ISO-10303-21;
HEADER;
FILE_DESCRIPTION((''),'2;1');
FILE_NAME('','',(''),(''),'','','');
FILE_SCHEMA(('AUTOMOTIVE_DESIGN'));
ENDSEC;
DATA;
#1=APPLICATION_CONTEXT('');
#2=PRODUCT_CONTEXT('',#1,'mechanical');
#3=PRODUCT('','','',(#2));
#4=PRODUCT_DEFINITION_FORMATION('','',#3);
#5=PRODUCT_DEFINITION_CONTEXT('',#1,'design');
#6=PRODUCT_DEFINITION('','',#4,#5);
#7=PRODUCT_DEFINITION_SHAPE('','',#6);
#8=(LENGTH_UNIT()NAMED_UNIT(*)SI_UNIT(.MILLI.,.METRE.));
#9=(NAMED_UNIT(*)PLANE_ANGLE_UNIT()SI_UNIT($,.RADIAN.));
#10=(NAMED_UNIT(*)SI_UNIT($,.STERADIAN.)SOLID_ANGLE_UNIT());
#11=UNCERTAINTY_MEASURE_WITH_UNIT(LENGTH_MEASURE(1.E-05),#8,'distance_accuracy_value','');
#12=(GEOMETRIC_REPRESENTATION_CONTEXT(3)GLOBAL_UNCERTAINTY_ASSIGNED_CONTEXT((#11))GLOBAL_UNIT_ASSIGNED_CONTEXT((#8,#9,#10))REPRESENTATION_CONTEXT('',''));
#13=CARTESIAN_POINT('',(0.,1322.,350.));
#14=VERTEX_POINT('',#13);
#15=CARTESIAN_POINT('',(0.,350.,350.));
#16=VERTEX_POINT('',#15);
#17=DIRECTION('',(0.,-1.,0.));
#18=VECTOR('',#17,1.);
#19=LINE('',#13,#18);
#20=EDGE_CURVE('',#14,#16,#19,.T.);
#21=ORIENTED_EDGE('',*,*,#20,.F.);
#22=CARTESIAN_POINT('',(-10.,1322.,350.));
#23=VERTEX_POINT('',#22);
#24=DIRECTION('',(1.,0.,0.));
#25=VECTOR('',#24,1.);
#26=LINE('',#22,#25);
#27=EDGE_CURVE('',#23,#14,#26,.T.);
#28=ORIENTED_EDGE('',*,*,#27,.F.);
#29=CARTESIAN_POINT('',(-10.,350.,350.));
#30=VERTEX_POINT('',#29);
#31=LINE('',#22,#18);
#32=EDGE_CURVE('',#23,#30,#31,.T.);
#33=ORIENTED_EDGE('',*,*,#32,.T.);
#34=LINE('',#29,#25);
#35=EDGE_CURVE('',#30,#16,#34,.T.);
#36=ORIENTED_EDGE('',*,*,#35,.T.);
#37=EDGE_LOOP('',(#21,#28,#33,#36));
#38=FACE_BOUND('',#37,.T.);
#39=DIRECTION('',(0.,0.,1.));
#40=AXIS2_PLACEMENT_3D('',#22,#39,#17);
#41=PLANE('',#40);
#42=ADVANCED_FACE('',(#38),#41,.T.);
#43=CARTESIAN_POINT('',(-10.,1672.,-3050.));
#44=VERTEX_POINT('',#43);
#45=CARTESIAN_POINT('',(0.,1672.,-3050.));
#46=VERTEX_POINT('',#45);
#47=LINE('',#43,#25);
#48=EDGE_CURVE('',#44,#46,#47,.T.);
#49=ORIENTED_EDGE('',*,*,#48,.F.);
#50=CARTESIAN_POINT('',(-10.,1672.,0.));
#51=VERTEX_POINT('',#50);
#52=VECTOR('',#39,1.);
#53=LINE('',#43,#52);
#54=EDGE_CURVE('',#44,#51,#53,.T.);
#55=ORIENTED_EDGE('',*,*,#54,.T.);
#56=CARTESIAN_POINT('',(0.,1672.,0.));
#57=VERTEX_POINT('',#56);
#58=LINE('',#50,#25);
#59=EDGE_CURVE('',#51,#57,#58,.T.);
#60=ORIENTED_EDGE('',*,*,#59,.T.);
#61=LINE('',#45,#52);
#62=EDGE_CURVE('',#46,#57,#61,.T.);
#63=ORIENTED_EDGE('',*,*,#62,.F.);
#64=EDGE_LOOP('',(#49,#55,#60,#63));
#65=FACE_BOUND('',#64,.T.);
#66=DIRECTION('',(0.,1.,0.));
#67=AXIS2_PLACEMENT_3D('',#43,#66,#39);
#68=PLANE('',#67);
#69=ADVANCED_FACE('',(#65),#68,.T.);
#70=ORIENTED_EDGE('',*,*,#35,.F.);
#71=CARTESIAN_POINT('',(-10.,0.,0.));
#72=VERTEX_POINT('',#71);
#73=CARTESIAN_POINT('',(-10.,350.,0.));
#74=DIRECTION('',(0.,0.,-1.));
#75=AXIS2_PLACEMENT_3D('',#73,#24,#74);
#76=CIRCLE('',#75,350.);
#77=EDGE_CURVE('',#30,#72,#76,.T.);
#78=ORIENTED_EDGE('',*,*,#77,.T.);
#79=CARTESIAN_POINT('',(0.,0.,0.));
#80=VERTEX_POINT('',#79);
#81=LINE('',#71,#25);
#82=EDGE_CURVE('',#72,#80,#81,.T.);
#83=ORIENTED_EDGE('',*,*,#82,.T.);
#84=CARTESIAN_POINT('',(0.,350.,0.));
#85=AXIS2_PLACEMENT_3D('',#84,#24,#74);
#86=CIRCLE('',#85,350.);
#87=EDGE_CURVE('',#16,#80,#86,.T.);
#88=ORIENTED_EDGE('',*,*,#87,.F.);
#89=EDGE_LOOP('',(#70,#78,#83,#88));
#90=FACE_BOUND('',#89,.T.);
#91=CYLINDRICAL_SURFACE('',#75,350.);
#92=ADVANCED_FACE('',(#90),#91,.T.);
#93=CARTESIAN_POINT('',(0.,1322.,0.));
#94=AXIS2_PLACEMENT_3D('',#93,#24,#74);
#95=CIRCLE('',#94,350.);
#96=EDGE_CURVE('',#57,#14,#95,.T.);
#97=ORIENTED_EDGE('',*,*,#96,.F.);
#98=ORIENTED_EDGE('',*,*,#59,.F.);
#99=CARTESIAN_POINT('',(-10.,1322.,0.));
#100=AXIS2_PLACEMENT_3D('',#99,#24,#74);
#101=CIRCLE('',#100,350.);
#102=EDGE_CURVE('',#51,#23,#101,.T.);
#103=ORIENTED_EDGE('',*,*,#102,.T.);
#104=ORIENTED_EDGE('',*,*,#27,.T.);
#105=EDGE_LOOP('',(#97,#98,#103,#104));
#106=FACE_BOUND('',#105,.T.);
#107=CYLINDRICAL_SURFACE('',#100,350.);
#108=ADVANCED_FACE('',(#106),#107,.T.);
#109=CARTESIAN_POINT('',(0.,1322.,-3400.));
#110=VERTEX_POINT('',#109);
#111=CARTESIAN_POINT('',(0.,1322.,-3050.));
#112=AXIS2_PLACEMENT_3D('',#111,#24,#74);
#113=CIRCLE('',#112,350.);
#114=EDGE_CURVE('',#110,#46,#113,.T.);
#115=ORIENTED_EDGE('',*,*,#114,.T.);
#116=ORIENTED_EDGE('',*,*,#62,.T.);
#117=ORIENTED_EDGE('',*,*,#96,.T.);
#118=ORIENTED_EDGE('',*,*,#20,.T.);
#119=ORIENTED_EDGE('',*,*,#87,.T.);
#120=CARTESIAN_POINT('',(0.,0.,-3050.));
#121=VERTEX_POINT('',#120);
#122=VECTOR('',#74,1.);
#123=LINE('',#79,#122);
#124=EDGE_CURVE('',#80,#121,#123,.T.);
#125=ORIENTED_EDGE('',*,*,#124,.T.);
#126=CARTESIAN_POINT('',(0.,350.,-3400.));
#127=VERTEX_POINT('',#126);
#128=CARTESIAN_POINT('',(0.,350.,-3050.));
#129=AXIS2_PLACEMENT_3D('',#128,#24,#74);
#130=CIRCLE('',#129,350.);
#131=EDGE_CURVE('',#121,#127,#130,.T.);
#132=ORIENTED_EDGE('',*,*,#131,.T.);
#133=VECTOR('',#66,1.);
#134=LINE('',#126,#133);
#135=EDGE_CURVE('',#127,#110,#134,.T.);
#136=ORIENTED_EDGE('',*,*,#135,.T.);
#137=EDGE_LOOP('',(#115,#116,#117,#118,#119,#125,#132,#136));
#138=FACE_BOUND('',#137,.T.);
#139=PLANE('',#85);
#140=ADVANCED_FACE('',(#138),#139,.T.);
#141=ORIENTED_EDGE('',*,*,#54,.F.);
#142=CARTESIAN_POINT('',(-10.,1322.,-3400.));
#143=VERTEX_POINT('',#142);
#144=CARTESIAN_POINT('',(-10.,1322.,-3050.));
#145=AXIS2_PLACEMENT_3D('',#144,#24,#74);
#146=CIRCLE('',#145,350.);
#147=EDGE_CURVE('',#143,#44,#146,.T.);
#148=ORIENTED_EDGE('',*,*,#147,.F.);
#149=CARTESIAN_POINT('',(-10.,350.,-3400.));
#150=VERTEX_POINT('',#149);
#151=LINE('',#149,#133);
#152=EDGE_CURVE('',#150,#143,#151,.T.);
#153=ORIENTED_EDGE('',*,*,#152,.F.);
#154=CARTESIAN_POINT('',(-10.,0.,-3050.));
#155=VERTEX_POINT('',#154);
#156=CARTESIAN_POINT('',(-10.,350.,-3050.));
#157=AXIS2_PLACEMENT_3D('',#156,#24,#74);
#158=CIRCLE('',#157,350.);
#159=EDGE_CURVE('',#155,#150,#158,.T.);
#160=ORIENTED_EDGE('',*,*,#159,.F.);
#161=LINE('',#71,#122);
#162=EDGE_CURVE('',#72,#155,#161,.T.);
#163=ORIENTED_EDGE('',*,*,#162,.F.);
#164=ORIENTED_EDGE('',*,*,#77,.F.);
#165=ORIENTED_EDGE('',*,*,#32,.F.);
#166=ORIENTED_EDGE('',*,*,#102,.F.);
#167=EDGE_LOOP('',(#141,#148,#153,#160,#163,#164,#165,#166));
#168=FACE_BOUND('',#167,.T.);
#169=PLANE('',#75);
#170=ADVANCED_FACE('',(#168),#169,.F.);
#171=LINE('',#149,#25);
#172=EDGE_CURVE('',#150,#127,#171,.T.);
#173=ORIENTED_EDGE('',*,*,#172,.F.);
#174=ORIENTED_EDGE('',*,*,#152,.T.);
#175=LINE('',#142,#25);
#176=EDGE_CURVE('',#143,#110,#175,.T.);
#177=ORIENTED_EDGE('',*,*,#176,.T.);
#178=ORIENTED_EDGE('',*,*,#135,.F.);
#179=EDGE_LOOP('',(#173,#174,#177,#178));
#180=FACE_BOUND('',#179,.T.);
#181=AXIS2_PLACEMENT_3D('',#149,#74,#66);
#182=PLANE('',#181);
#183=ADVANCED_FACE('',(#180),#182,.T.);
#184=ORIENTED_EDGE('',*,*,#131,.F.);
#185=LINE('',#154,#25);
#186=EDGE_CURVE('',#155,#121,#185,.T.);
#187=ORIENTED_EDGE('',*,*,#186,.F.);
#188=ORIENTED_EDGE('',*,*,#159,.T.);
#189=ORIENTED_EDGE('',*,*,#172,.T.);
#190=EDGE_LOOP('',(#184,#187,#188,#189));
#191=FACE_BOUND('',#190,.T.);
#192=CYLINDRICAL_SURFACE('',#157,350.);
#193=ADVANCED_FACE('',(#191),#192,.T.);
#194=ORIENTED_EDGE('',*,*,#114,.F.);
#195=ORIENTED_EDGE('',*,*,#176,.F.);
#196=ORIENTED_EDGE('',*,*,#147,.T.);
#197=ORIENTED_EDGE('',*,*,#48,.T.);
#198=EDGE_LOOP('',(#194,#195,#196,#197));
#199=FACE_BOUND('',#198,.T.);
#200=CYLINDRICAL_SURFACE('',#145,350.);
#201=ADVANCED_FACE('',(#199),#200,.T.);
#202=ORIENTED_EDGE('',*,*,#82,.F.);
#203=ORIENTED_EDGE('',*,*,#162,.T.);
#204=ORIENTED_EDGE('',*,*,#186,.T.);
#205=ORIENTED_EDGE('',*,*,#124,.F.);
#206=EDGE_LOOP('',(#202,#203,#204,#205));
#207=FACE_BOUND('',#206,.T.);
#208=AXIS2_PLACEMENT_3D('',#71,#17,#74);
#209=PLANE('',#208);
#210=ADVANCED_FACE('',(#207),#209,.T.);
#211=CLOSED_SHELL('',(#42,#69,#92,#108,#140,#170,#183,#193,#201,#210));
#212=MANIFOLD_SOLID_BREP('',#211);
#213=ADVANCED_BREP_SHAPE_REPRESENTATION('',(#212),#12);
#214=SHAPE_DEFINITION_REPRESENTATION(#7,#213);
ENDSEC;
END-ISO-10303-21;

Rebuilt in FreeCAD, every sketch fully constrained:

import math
import FreeCAD as App
import Part
import Sketcher

V = App.Vector

doc = App.newDocument("Part")
params = doc.addObject("Spreadsheet::Sheet", "Params")
for row, (alias, value) in enumerate([
    ("sketch1_radius", "350 mm"),
    ("sketch1_width", "972 mm"),
    ("sketch1_height", "3050 mm"),
    ("pad1_length", "10 mm"),
], start=1):
    params.set(f"A{row}", alias)
    params.set(f"B{row}", "=" + value)
    params.setAlias(f"B{row}", alias)

body = doc.addObject("PartDesign::Body", "Body")

# Sketch on YZ plane
sketch1 = body.newObject("Sketcher::SketchObject", "Sketch")
sketch1.AttachmentSupport = (doc.getObject("YZ_Plane"), [""])
sketch1.MapMode = "FlatFace"
sketch1.addGeometry(Part.LineSegment(V(0, 0, 0), V(0, -3050, 0)), False)
sketch1.addGeometry(Part.ArcOfCircle(Part.Circle(V(350, -3050, 0), V(0, 0, 1), 350), math.radians(-180), math.radians(-90)), False)
sketch1.addGeometry(Part.LineSegment(V(350, -3400, 0), V(1322, -3400, 0)), False)
sketch1.addGeometry(Part.ArcOfCircle(Part.Circle(V(1322, -3050, 0), V(0, 0, 1), 350), math.radians(-90), math.radians(0)), False)
sketch1.addGeometry(Part.LineSegment(V(1672, -3050, 0), V(1672, 0, 0)), False)
sketch1.addGeometry(Part.ArcOfCircle(Part.Circle(V(1322, 0, 0), V(0, 0, 1), 350), math.radians(0), math.radians(90)), False)
sketch1.addGeometry(Part.LineSegment(V(1322, 350, 0), V(350, 350, 0)), False)
sketch1.addGeometry(Part.ArcOfCircle(Part.Circle(V(350, 0, 0), V(0, 0, 1), 350), math.radians(90), math.radians(180)), False)
sketch1.addConstraint(Sketcher.Constraint("Tangent", 0, 2, 1, 1))
sketch1.addConstraint(Sketcher.Constraint("Tangent", 1, 2, 2, 1))
sketch1.addConstraint(Sketcher.Constraint("Tangent", 2, 2, 3, 1))
sketch1.addConstraint(Sketcher.Constraint("Tangent", 3, 2, 4, 1))
sketch1.addConstraint(Sketcher.Constraint("Tangent", 4, 2, 5, 1))
sketch1.addConstraint(Sketcher.Constraint("Tangent", 5, 2, 6, 1))
sketch1.addConstraint(Sketcher.Constraint("Tangent", 6, 2, 7, 1))
sketch1.addConstraint(Sketcher.Constraint("Tangent", 7, 2, 0, 1))
sketch1.addConstraint(Sketcher.Constraint("Vertical", 0))
sketch1.addConstraint(Sketcher.Constraint("Horizontal", 2))
sketch1.addConstraint(Sketcher.Constraint("Vertical", 4))
sketch1.addConstraint(Sketcher.Constraint("Horizontal", 6))
sketch1.addConstraint(Sketcher.Constraint("Equal", 1, 3))
sketch1.addConstraint(Sketcher.Constraint("Equal", 3, 5))
sketch1.addConstraint(Sketcher.Constraint("Equal", 5, 7))
sketch1.addConstraint(Sketcher.Constraint("PointOnObject", 5, 3, -1))
sketch1.addConstraint(Sketcher.Constraint("PointOnObject", 0, 2, -2))
sketch1.addConstraint(Sketcher.Constraint("Radius", 1, 350.0))
sketch1.addConstraint(Sketcher.Constraint("DistanceX", 2, 1, 2, 2, 972.0))
sketch1.addConstraint(Sketcher.Constraint("DistanceY", 0, 2, 0, 1, 3050.0))
sketch1.setExpression("Constraints[17]", "Params.sketch1_radius")
sketch1.setExpression("Constraints[18]", "Params.sketch1_width")
sketch1.setExpression("Constraints[19]", "Params.sketch1_height")
pad1 = body.newObject("PartDesign::Pad", "Pad")
pad1.Profile = sketch1
pad1.setExpression("Length", "Params.pad1_length")
pad1.Reversed = True

doc.recompute()
